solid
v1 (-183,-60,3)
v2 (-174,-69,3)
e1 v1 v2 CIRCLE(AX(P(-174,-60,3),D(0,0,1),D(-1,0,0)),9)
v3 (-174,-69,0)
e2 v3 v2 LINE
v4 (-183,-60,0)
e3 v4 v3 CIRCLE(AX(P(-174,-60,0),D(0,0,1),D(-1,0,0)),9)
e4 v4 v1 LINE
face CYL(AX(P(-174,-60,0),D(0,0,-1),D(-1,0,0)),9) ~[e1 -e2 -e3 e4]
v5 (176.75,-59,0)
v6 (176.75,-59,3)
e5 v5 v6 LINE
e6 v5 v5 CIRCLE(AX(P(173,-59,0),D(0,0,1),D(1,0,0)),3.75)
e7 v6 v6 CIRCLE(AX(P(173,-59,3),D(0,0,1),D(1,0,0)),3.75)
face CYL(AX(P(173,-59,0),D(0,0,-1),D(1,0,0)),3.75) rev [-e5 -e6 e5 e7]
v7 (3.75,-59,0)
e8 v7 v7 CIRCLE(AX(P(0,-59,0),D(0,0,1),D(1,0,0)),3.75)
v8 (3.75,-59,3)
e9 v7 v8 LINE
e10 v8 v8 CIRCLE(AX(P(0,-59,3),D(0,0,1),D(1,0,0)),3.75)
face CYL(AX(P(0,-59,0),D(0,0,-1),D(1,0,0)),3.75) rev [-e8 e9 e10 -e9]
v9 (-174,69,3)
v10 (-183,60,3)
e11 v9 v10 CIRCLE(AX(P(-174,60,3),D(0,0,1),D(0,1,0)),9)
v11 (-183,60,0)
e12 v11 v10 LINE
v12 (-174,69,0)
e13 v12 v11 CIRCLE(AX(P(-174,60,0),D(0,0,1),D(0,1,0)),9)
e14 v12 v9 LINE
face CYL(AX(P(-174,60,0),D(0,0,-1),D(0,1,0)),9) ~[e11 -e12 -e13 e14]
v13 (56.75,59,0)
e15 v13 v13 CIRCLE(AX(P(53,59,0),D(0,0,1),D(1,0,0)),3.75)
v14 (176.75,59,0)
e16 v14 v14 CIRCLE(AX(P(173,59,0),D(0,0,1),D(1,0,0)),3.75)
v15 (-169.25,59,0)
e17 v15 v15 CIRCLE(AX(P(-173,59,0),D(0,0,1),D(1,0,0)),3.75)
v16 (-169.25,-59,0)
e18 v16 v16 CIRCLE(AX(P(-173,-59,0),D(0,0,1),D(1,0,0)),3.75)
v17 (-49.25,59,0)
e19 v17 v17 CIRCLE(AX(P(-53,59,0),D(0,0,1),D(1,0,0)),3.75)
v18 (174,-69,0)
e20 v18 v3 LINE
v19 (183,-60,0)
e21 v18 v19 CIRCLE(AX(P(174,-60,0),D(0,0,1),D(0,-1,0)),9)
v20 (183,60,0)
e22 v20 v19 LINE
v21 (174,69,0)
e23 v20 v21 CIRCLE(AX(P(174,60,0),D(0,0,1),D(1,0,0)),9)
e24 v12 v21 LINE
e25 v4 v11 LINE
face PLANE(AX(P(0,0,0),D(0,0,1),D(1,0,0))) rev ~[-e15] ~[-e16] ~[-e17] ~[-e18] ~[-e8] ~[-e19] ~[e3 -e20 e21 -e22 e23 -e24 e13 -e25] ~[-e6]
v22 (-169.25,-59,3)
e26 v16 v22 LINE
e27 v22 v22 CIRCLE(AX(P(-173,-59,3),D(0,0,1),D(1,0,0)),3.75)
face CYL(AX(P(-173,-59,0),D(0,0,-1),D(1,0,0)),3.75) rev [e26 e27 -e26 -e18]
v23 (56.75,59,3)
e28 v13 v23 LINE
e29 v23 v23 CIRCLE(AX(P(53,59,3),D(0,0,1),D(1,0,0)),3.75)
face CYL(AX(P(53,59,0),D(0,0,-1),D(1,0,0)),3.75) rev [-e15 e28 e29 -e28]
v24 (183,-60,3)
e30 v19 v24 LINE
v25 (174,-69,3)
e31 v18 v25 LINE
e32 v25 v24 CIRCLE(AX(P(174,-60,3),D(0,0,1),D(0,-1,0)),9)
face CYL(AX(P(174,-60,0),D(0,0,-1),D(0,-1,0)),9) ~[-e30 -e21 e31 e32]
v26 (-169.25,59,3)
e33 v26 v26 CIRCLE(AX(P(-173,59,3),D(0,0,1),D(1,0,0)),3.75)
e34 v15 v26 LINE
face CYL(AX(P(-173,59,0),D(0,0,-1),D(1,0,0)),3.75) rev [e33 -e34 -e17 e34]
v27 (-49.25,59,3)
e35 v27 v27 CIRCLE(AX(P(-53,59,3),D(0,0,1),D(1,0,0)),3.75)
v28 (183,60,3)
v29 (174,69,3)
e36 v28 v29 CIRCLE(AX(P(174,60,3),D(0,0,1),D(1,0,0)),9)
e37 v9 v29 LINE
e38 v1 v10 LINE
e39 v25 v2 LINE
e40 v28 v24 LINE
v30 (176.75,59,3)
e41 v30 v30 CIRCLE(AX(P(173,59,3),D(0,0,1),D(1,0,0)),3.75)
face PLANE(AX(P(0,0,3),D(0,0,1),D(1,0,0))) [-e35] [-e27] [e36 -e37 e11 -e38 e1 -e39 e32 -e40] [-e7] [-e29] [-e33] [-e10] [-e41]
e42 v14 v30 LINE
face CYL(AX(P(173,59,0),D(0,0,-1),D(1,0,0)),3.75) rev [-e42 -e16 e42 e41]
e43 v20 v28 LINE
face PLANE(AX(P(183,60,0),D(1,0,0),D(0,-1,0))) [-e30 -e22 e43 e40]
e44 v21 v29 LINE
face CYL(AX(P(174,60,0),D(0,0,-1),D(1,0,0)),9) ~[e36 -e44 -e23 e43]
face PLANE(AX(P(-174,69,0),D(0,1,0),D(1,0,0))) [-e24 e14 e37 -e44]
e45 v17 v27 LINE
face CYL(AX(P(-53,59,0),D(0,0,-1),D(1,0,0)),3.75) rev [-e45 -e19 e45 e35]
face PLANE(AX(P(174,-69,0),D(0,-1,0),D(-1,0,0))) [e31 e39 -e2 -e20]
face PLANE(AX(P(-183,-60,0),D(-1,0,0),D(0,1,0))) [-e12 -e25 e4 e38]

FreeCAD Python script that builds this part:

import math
import FreeCAD as App
import Part
import Sketcher

doc = App.newDocument("Part")
params = doc.addObject("Spreadsheet::Sheet", "Params")
for row, (alias, value) in enumerate([
    ("sketch1_radius", "9 mm"),
    ("sketch1_diameter", "7.5 mm"),
    ("sketch1_width", "348 mm"),
    ("sketch1_height", "120 mm"),
    ("pad1_length", "3 mm"),
], start=1):
    params.set(f"A{row}", alias)
    params.set(f"B{row}", "=" + value)
    params.setAlias(f"B{row}", alias)

body = doc.addObject("PartDesign::Body", "Body")

# Sketch on XY plane
sketch1 = doc.addObject("Sketcher::SketchObject", "Sketch")
body.addObject(sketch1)
sketch1.AttachmentSupport = (doc.XY_Plane, [""])
sketch1.MapMode = "FlatFace"
sketch1.addGeometry(Part.LineSegment(App.Vector(-174, -69, 0), App.Vector(174, -69, 0)), False)
sketch1.addGeometry(Part.ArcOfCircle(Part.Circle(App.Vector(174, -60, 0), App.Vector(0, 0, 1), 9), math.radians(-90), math.radians(0)), False)
sketch1.addGeometry(Part.LineSegment(App.Vector(183, -60, 0), App.Vector(183, 60, 0)), False)
sketch1.addGeometry(Part.ArcOfCircle(Part.Circle(App.Vector(174, 60, 0), App.Vector(0, 0, 1), 9), math.radians(0), math.radians(90)), False)
sketch1.addGeometry(Part.LineSegment(App.Vector(174, 69, 0), App.Vector(-174, 69, 0)), False)
sketch1.addGeometry(Part.ArcOfCircle(Part.Circle(App.Vector(-174, 60, 0), App.Vector(0, 0, 1), 9), math.radians(90), math.radians(180)), False)
sketch1.addGeometry(Part.LineSegment(App.Vector(-183, 60, 0), App.Vector(-183, -60, 0)), False)
sketch1.addGeometry(Part.ArcOfCircle(Part.Circle(App.Vector(-174, -60, 0), App.Vector(0, 0, 1), 9), math.radians(180), math.radians(270)), False)
sketch1.addGeometry(Part.Circle(App.Vector(-173, -59, 0), App.Vector(0, 0, 1), 3.8), False)
sketch1.addGeometry(Part.Circle(App.Vector(0, -59, 0), App.Vector(0, 0, 1), 3.8), False)
sketch1.addGeometry(Part.Circle(App.Vector(173, -59, 0), App.Vector(0, 0, 1), 3.8), False)
sketch1.addGeometry(Part.Circle(App.Vector(-173, 59, 0), App.Vector(0, 0, 1), 3.8), False)
sketch1.addGeometry(Part.Circle(App.Vector(-53, 59, 0), App.Vector(0, 0, 1), 3.8), False)
sketch1.addGeometry(Part.Circle(App.Vector(53, 59, 0), App.Vector(0, 0, 1), 3.8), False)
sketch1.addGeometry(Part.Circle(App.Vector(173, 59, 0), App.Vector(0, 0, 1), 3.8), False)
sketch1.addConstraint(Sketcher.Constraint("Tangent", 0, 2, 1, 1))
sketch1.addConstraint(Sketcher.Constraint("Tangent", 1, 2, 2, 1))
sketch1.addConstraint(Sketcher.Constraint("Tangent", 2, 2, 3, 1))
sketch1.addConstraint(Sketcher.Constraint("Tangent", 3, 2, 4, 1))
sketch1.addConstraint(Sketcher.Constraint("Tangent", 4, 2, 5, 1))
sketch1.addConstraint(Sketcher.Constraint("Tangent", 5, 2, 6, 1))
sketch1.addConstraint(Sketcher.Constraint("Tangent", 6, 2, 7, 1))
sketch1.addConstraint(Sketcher.Constraint("Tangent", 7, 2, 0, 1))
sketch1.addConstraint(Sketcher.Constraint("Horizontal", 0))
sketch1.addConstraint(Sketcher.Constraint("Vertical", 2))
sketch1.addConstraint(Sketcher.Constraint("Horizontal", 4))
sketch1.addConstraint(Sketcher.Constraint("Vertical", 6))
sketch1.addConstraint(Sketcher.Constraint("Equal", 1, 3))
sketch1.addConstraint(Sketcher.Constraint("Equal", 3, 5))
sketch1.addConstraint(Sketcher.Constraint("Equal", 5, 7))
sketch1.addConstraint(Sketcher.Constraint("Equal", 8, 9))
sketch1.addConstraint(Sketcher.Constraint("Equal", 9, 10))
sketch1.addConstraint(Sketcher.Constraint("Equal", 10, 11))
sketch1.addConstraint(Sketcher.Constraint("Equal", 11, 12))
sketch1.addConstraint(Sketcher.Constraint("Equal", 12, 13))
sketch1.addConstraint(Sketcher.Constraint("Equal", 13, 14))
sketch1.addConstraint(Sketcher.Constraint("Symmetric", 1, 3, 5, 3, -1, 1))
sketch1.addConstraint(Sketcher.Constraint("Symmetric", 10, 3, 11, 3, -1, 1))
sketch1.addConstraint(Sketcher.Constraint("Symmetric", 8, 3, 14, 3, -1, 1))
sketch1.addConstraint(Sketcher.Constraint("Symmetric", 8, 3, 10, 3, -2))
sketch1.addConstraint(Sketcher.Constraint("Symmetric", 12, 3, 13, 3, -2))
sketch1.addConstraint(Sketcher.Constraint("PointOnObject", 9, 3, -2))
sketch1.addConstraint(Sketcher.Constraint("Horizontal", 8, 3, 9, 3))
sketch1.addConstraint(Sketcher.Constraint("Horizontal", 11, 3, 12, 3))
sketch1.addConstraint(Sketcher.Constraint("Radius", 1, 9.0))
sketch1.addConstraint(Sketcher.Constraint("Diameter", 8, 7.5))
sketch1.addConstraint(Sketcher.Constraint("DistanceX", 0, 1, 0, 2, 348.0))
sketch1.addConstraint(Sketcher.Constraint("DistanceY", 2, 1, 2, 2, 120.0))
sketch1.addConstraint(Sketcher.Constraint("DistanceX", 8, 3, -1, 1, 173.0))
sketch1.addConstraint(Sketcher.Constraint("DistanceY", 8, 3, -1, 1, 59.0))
sketch1.addConstraint(Sketcher.Constraint("DistanceX", 12, 3, -1, 1, 53.0))
sketch1.setExpression("Constraints[29]", "Params.sketch1_radius")
sketch1.setExpression("Constraints[30]", "Params.sketch1_diameter")
sketch1.setExpression("Constraints[31]", "Params.sketch1_width")
sketch1.setExpression("Constraints[32]", "Params.sketch1_height")
pad1 = doc.addObject("PartDesign::Pad", "Pad")
body.addObject(pad1)
pad1.Profile = sketch1
pad1.setExpression("Length", "Params.pad1_length")

doc.recompute()
